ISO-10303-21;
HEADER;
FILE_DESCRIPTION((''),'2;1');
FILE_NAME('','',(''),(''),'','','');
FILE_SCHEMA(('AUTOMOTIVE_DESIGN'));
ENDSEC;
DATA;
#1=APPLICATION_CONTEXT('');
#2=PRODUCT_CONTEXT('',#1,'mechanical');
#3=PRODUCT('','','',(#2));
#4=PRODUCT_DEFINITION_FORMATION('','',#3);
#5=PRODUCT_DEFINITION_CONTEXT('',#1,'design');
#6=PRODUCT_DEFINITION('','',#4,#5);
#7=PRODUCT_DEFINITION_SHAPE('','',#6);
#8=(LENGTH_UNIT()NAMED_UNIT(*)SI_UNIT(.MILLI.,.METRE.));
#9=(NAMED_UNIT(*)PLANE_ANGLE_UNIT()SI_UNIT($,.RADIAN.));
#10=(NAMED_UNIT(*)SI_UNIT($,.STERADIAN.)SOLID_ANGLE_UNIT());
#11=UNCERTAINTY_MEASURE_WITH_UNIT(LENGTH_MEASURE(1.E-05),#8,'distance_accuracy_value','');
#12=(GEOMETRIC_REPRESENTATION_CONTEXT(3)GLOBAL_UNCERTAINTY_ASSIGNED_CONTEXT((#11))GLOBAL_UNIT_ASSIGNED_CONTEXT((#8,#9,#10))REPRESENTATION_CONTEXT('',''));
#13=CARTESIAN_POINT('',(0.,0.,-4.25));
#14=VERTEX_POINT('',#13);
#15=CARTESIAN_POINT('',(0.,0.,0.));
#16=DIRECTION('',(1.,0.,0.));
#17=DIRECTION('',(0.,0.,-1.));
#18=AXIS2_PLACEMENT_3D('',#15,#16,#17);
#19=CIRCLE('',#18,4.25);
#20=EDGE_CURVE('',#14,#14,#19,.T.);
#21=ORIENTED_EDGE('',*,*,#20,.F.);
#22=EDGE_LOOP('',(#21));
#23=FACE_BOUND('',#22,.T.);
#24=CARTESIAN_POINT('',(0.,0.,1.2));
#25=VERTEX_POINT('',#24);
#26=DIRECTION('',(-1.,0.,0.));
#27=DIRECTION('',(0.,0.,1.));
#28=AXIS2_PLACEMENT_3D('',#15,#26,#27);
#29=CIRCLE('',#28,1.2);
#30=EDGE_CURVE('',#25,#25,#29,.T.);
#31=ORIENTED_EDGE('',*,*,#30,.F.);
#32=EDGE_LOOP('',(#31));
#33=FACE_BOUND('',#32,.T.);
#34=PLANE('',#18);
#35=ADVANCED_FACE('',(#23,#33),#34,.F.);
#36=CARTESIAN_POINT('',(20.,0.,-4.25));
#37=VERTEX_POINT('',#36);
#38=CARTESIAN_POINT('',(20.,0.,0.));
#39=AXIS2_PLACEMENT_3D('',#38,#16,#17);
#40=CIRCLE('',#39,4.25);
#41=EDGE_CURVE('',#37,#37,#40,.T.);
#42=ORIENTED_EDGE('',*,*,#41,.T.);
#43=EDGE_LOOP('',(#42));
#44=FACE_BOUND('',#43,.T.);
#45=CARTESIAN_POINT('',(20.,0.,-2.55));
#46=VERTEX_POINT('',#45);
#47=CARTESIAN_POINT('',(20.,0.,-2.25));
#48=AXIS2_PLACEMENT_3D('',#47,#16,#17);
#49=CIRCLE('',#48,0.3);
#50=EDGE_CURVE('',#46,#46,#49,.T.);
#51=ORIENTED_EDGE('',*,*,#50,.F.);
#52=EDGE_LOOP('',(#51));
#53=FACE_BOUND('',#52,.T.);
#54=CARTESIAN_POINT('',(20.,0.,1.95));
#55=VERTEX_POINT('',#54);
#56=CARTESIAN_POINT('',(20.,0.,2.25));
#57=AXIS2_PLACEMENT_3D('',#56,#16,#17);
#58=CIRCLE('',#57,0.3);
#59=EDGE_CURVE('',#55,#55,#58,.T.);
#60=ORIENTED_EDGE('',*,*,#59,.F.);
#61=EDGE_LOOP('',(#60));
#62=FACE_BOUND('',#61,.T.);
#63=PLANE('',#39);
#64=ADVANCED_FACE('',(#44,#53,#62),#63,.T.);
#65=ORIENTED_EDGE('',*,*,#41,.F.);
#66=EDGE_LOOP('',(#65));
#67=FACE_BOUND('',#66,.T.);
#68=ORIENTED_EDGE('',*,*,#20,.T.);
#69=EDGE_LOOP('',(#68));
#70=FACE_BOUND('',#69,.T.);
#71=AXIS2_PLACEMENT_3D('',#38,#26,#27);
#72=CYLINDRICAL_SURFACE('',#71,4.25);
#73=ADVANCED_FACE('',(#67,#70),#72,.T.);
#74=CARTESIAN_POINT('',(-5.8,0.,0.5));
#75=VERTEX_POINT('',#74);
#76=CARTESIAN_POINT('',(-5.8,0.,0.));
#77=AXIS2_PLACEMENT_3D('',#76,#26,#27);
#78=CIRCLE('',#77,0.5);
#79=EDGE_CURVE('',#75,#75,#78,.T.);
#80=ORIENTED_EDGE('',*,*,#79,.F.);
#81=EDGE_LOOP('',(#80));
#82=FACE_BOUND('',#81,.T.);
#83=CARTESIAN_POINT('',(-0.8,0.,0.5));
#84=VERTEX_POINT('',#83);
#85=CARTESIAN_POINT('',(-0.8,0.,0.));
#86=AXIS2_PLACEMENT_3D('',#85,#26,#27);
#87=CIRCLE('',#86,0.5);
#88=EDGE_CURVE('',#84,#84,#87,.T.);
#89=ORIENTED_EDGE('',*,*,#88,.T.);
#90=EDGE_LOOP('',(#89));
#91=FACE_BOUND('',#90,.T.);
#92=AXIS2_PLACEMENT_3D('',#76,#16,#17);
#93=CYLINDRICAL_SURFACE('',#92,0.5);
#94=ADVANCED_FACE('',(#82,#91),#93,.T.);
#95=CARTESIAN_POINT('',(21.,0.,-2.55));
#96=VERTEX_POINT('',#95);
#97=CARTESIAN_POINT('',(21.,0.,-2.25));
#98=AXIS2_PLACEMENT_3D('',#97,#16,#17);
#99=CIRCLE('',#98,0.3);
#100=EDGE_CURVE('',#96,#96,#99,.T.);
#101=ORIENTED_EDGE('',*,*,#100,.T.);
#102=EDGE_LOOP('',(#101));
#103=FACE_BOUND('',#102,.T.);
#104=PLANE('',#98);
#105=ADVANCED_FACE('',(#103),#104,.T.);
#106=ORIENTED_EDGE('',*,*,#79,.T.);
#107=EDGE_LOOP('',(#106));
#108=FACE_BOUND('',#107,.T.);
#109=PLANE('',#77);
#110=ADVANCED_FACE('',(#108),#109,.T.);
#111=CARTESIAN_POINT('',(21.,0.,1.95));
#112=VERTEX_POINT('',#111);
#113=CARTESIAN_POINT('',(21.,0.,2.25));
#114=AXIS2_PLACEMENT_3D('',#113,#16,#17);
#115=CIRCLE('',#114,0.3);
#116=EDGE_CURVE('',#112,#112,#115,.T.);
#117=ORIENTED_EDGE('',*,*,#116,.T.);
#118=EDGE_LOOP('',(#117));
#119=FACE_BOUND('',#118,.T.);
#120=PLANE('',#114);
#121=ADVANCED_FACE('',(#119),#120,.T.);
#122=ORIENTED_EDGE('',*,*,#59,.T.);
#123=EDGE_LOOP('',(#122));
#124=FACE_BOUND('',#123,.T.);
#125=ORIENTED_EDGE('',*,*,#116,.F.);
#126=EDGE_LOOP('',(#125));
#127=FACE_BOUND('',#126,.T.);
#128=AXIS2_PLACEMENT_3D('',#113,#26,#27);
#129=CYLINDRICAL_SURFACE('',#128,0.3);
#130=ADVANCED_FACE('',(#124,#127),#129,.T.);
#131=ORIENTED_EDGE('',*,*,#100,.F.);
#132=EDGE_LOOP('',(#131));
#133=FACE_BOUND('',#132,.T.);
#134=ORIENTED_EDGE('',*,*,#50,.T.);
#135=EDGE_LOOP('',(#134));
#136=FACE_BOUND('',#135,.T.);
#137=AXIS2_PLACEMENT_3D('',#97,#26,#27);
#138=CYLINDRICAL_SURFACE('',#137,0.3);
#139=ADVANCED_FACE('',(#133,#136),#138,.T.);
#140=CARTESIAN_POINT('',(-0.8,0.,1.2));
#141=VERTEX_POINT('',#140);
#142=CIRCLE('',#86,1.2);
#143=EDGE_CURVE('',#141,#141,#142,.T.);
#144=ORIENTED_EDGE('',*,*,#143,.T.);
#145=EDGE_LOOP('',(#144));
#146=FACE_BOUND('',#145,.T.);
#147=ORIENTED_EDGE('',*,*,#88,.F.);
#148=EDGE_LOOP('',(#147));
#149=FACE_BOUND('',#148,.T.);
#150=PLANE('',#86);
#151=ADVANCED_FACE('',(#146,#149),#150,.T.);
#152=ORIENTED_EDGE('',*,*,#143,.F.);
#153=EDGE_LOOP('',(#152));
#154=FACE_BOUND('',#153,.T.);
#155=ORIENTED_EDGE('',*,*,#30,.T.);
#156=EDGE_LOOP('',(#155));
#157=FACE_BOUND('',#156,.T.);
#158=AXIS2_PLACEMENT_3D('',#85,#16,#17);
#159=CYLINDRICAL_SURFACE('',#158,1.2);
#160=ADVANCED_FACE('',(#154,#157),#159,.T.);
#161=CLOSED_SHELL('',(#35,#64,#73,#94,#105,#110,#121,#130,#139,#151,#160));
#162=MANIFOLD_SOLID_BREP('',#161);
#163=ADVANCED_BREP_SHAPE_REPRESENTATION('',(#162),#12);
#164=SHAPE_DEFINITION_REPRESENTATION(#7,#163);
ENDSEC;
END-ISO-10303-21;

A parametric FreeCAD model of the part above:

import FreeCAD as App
import Part
import Sketcher

V = App.Vector
Q = App.Units.Quantity

doc = App.newDocument("Part")
body = doc.addObject("PartDesign::Body", "Body")

# Sketch on YZ plane
sketch1 = body.newObject("Sketcher::SketchObject", "Sketch")
sketch1.AttachmentSupport = (doc.getObject("YZ_Plane"), [""])
sketch1.MapMode = "FlatFace"
sketch1.addGeometry(Part.Circle(V(0, 0, 0), V(0, 0, 1), 4.25), False)
sketch1.addConstraint([
    Sketcher.Constraint("Coincident", 0, 3, -1, 1),
    Sketcher.Constraint("Diameter", 0, Q("8.5 mm")),
])
pad1 = body.newObject("PartDesign::Pad", "Pad")
pad1.Profile = sketch1
pad1.Length = 20

# Sketch on YZ plane
sketch2 = body.newObject("Sketcher::SketchObject", "Sketch001")
sketch2.AttachmentSupport = (doc.getObject("YZ_Plane"), [""])
sketch2.MapMode = "FlatFace"
sketch2.addGeometry(Part.Circle(V(0, 0, 0), V(0, 0, 1), 1.2), False)
sketch2.addConstraint([
    Sketcher.Constraint("Coincident", 0, 3, -1, 1),
    Sketcher.Constraint("Diameter", 0, Q("2.4 mm")),
])
pad2 = body.newObject("PartDesign::Pad", "Pad001")
pad2.Profile = sketch2
pad2.Length = 0.8
pad2.Reversed = True

# Sketch on YZ plane
sketch3 = body.newObject("Sketcher::SketchObject", "Sketch002")
sketch3.AttachmentSupport = (doc.getObject("YZ_Plane"), [""])
sketch3.MapMode = "FlatFace"
sketch3.AttachmentOffset = App.Placement(V(0, 0, -0.8), App.Rotation())
sketch3.addGeometry(Part.Circle(V(0, 0, 0), V(0, 0, 1), 0.5), False)
sketch3.addConstraint([
    Sketcher.Constraint("Coincident", 0, 3, -1, 1),
    Sketcher.Constraint("Diameter", 0, Q("1 mm")),
])
pad3 = body.newObject("PartDesign::Pad", "Pad002")
pad3.Profile = sketch3
pad3.Length = 5
pad3.Reversed = True

# Sketch on YZ plane
sketch4 = body.newObject("Sketcher::SketchObject", "Sketch003")
sketch4.AttachmentSupport = (doc.getObject("YZ_Plane"), [""])
sketch4.MapMode = "FlatFace"
sketch4.AttachmentOffset = App.Placement(V(0, 0, 20), App.Rotation())
sketch4.addGeometry([
    Part.Circle(V(0, 2.25, 0), V(0, 0, 1), 0.3),
    Part.Circle(V(0, -2.25, 0), V(0, 0, 1), 0.3),
], False)
sketch4.addConstraint([
    Sketcher.Constraint("Equal", 0, 1),
    Sketcher.Constraint("Symmetric", 0, 3, 1, 3, -1, 1),
    Sketcher.Constraint("PointOnObject", 0, 3, -2),
    Sketcher.Constraint("Diameter", 0, Q("0.6 mm")),
    Sketcher.Constraint("DistanceY", 1, 3, 0, 3, Q("4.5 mm")),
])
pad4 = body.newObject("PartDesign::Pad", "Pad003")
pad4.Profile = sketch4
pad4.Length = 1

doc.recompute()
